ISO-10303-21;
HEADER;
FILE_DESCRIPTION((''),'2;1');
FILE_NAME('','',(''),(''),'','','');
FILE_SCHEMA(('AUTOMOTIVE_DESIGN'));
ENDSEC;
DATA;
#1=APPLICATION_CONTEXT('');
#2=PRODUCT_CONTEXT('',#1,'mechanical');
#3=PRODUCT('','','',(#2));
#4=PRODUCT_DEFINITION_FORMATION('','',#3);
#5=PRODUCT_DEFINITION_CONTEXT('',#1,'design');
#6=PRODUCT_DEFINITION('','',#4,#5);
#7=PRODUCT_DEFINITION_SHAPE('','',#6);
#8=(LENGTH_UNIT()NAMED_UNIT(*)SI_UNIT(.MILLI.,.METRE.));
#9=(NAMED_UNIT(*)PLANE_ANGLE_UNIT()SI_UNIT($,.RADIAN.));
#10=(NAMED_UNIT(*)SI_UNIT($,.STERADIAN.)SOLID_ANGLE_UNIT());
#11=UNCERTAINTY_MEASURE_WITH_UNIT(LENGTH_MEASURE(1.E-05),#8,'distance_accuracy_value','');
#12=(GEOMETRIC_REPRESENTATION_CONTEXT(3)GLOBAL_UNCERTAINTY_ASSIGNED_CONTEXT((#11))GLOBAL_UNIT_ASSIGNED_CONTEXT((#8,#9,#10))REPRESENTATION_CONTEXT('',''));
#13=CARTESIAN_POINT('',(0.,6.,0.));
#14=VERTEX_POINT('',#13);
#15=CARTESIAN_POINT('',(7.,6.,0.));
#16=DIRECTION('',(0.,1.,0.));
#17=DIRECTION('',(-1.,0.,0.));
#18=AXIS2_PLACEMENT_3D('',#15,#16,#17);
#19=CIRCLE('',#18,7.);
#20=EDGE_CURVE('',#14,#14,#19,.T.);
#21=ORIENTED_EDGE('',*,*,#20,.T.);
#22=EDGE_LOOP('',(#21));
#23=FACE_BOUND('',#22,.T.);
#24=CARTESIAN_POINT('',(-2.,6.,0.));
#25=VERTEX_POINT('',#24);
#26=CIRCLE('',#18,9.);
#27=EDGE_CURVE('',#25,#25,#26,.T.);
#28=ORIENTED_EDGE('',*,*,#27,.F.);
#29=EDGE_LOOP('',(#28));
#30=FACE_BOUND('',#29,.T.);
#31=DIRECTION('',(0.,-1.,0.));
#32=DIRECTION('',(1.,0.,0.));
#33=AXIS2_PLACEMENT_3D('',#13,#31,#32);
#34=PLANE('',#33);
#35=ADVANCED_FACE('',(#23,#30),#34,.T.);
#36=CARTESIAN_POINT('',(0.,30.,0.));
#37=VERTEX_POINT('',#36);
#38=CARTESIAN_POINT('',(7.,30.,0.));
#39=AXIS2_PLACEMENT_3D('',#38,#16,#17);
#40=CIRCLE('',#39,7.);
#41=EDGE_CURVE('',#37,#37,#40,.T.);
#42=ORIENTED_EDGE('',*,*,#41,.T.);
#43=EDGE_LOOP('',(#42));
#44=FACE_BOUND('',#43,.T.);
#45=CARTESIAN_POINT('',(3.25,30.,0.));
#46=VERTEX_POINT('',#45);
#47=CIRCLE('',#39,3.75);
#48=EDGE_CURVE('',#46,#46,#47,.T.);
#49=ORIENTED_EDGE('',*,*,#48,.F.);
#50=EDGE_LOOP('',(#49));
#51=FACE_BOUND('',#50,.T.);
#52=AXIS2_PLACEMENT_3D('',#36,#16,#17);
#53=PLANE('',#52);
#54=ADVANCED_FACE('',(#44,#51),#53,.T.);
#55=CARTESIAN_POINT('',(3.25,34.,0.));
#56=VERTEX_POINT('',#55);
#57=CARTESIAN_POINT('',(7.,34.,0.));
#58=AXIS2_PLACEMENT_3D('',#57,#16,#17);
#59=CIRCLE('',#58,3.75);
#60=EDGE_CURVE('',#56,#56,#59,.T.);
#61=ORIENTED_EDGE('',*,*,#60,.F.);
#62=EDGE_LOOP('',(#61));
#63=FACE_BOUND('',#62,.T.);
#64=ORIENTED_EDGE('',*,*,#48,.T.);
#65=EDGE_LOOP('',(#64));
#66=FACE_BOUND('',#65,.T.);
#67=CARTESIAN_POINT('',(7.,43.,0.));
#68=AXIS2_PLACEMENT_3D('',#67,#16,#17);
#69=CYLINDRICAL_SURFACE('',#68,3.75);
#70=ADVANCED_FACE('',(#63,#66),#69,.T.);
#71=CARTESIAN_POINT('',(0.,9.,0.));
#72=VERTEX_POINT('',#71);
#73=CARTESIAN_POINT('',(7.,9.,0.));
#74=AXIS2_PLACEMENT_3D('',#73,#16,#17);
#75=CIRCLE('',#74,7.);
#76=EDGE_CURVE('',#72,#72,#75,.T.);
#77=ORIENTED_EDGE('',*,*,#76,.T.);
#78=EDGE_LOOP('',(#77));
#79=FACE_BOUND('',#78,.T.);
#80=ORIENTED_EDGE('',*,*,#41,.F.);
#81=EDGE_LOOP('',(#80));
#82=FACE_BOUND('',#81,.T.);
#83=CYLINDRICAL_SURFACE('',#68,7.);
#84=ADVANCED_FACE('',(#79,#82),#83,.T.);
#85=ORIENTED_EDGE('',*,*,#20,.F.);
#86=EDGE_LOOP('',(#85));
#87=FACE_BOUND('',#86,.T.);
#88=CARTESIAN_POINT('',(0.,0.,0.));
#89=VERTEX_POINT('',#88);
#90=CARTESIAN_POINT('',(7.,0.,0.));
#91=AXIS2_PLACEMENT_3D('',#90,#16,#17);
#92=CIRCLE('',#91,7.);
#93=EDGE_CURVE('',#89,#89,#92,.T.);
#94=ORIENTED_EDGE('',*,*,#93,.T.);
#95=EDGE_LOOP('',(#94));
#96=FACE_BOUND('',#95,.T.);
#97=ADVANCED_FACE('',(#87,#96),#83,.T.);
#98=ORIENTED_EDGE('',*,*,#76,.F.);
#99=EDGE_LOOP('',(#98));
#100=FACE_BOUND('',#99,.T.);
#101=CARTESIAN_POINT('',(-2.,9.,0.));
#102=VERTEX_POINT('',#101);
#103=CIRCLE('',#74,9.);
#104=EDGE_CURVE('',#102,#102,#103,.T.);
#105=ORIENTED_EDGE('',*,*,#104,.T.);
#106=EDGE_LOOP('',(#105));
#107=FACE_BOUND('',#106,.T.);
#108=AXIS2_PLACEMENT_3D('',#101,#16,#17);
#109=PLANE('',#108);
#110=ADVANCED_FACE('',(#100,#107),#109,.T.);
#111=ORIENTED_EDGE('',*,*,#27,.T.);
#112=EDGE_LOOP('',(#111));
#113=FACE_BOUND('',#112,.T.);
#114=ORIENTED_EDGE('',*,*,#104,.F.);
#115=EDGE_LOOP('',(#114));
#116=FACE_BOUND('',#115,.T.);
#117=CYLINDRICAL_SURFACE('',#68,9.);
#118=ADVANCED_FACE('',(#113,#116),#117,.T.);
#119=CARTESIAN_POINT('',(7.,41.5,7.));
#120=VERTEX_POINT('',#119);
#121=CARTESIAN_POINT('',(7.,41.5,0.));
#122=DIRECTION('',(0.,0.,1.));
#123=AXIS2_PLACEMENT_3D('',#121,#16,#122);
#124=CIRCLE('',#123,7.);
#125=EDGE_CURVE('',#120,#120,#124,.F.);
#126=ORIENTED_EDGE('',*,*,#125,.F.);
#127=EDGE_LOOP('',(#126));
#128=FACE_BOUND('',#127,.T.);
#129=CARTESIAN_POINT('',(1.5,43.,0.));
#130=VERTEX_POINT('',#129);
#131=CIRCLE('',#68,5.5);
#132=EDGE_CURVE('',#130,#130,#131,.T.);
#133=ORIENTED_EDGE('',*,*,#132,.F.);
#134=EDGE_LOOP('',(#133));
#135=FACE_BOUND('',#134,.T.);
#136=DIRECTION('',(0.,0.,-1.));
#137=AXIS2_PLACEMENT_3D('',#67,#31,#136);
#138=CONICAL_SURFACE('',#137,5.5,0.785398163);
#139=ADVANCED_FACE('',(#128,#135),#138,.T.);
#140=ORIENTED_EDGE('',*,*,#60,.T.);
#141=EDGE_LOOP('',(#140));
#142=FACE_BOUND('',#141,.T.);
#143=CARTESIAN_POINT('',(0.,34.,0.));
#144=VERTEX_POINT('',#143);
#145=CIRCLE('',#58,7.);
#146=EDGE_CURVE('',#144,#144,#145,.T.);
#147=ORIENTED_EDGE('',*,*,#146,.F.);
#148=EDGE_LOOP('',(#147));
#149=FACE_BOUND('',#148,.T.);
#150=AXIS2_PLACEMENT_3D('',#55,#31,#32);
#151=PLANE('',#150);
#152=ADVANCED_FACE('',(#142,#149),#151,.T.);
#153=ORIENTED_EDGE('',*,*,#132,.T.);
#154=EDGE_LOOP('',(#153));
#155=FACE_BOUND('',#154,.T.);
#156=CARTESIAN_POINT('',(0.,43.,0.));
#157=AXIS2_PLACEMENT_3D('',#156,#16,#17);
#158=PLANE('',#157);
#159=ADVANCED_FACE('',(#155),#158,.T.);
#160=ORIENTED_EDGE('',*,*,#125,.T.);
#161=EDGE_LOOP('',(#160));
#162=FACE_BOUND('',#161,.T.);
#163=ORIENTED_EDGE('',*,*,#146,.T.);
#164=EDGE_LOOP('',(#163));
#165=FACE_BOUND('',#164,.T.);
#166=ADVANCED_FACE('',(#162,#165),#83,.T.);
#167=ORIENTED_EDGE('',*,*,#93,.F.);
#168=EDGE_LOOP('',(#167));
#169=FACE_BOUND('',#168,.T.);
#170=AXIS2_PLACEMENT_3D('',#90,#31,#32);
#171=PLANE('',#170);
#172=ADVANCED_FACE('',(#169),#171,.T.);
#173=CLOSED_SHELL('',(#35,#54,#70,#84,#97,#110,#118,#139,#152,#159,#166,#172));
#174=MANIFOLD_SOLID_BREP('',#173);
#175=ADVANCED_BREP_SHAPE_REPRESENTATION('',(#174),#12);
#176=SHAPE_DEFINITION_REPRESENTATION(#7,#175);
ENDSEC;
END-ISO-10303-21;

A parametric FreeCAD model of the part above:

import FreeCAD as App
import Part
import Sketcher
Q = App.Units.Quantity


def edges_at(feature, points):
    """Names of the edges that pass closest to the given points."""
    edges = feature.Shape.Edges
    near = lambda p: min(range(len(edges)), key=lambda i: edges[i].distToShape(Part.Vertex(*p))[0])
    return sorted({f"Edge{near(p) + 1}" for p in points})


def add_polygon(sketch, points):
    """Adds a closed chain of lines whose ends are joined by coincident constraints."""
    first, n = sketch.GeometryCount, len(points)
    for a, b in zip(points, points[1:] + points[:1]):
        sketch.addGeometry(Part.LineSegment(App.Vector(*a, 0), App.Vector(*b, 0)), False)
    for i in range(n):
        sketch.addConstraint(Sketcher.Constraint("Coincident", first + i, 2, first + (i + 1) % n, 1))

doc = App.newDocument("Part")
body = doc.addObject("PartDesign::Body", "Body")

sketch1 = body.newObject("Sketcher::SketchObject", "Sketch")
sketch1.AttachmentSupport = (doc.getObject("XY_Plane"), [""])
sketch1.MapMode = "FlatFace"
add_polygon(sketch1, [(0, 0), (7, 0), (7, 43), (0, 43), (0, 34), (3.25, 34), (3.25, 30), (0, 30), (0, 9), (-2, 9), (-2, 6), (0, 6)])
sketch1.addGeometry(Part.LineSegment(App.Vector(7, 43, 0), App.Vector(7, 0, 0)), True)
sketch1.addConstraint([
    Sketcher.Constraint("Horizontal", 0),
    Sketcher.Constraint("Vertical", 1),
    Sketcher.Constraint("Horizontal", 2),
    Sketcher.Constraint("Vertical", 3),
    Sketcher.Constraint("Horizontal", 4),
    Sketcher.Constraint("Vertical", 5),
    Sketcher.Constraint("Horizontal", 6),
    Sketcher.Constraint("Vertical", 7),
    Sketcher.Constraint("Horizontal", 8),
    Sketcher.Constraint("Vertical", 9),
    Sketcher.Constraint("Horizontal", 10),
    Sketcher.Constraint("Vertical", 11),
    Sketcher.Constraint("Vertical", 12),
    Sketcher.Constraint("Coincident", 11, 2, -1, 1),
    Sketcher.Constraint("Coincident", 12, 1, 1, 2),
    Sketcher.Constraint("PointOnObject", 2, 2, -2),
    Sketcher.Constraint("PointOnObject", 6, 2, -2),
    Sketcher.Constraint("PointOnObject", 12, 2, -1),
    Sketcher.Constraint("DistanceX", 0, 1, 0, 2, Q("7 mm")),
    Sketcher.Constraint("DistanceX", 8, 2, 8, 1, Q("2 mm")),
    Sketcher.Constraint("DistanceY", 1, 1, 1, 2, Q("43 mm")),
    Sketcher.Constraint("DistanceY", 3, 2, 3, 1, Q("9 mm")),
    Sketcher.Constraint("DistanceY", 5, 2, 5, 1, Q("4 mm")),
    Sketcher.Constraint("DistanceY", 7, 2, 7, 1, Q("21 mm")),
    Sketcher.Constraint("DistanceY", 9, 2, 9, 1, Q("3 mm")),
    Sketcher.Constraint("DistanceX", 4, 1, 4, 2, Q("3.25 mm")),
])
revolution = body.newObject("PartDesign::Revolution", "Revolution")
revolution.Profile = sketch1
revolution.ReferenceAxis = (sketch1, ["Axis0"])
revolution.Angle = 360
doc.recompute()

chamfer = body.newObject("PartDesign::Chamfer", "Chamfer")
chamfer.Base = (revolution, edges_at(revolution, [(14, 43, 0)]))
chamfer.Size = 1.5

doc.recompute()
